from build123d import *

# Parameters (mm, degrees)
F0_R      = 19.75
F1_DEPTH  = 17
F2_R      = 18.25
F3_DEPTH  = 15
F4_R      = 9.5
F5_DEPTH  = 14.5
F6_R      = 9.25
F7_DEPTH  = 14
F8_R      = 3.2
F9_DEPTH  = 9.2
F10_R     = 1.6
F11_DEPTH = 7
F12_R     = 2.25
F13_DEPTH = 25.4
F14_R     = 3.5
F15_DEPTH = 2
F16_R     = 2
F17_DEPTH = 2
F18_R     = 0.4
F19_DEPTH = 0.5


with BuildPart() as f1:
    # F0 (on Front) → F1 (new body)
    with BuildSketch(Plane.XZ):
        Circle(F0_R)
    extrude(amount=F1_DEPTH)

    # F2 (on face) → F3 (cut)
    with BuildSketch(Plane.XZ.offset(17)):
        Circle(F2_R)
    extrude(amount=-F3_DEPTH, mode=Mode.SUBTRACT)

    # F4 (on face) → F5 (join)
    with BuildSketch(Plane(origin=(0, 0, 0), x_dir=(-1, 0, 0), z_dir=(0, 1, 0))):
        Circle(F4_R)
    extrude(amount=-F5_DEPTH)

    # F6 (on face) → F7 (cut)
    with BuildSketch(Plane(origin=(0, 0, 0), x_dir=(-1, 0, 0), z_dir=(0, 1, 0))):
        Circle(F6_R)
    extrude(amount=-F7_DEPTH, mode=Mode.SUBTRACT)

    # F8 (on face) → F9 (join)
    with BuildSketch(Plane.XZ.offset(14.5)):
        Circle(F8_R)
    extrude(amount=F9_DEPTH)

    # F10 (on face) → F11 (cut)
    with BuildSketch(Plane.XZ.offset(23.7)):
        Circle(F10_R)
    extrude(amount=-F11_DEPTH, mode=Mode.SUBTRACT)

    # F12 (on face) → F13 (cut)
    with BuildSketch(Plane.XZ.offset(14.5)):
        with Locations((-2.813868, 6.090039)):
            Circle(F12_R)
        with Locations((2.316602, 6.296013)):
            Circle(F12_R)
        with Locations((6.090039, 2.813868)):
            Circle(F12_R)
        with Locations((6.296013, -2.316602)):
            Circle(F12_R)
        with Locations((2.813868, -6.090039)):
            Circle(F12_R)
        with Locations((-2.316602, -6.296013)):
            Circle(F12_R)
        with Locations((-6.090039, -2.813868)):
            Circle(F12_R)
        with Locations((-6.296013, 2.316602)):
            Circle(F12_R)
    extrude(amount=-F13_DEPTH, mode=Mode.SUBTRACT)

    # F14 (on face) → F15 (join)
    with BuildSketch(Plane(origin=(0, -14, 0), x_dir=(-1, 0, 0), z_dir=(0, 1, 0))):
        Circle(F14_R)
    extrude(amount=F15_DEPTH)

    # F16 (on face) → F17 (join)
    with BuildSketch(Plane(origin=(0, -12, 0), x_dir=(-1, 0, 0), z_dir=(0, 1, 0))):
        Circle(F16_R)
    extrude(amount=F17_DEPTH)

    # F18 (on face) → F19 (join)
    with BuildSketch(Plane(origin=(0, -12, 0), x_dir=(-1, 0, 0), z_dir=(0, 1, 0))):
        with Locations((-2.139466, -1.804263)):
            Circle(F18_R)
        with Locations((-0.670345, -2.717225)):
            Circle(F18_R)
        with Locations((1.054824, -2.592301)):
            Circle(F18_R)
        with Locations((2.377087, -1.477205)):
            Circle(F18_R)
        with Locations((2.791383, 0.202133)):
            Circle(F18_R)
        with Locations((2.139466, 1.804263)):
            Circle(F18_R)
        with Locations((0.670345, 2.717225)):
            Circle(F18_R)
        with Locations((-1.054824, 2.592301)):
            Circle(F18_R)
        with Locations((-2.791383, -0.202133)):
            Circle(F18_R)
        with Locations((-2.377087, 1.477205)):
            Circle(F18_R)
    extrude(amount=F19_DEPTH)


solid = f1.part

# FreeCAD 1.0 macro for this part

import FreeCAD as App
import Part
import Sketcher
from FreeCAD import Vector
Q = App.Units.Quantity

doc = App.newDocument("Part")
body = doc.addObject("PartDesign::Body", "Body")

sketch1 = body.newObject("Sketcher::SketchObject", "Sketch")
sketch1.AttachmentSupport = (doc.getObject("XZ_Plane"), [""])
sketch1.MapMode = "FlatFace"
sketch1.addGeometry(Part.Circle(Vector(0, 0, 0), Vector(0, 0, 1), 20), False)
sketch1.addConstraint([
    Sketcher.Constraint("Coincident", 0, 3, -1, 1),
    Sketcher.Constraint("Diameter", 0, Q("39.5 mm")),
])
pad1 = body.newObject("PartDesign::Pad", "Pad")
pad1.Profile = sketch1
pad1.Length = 17

sketch2 = body.newObject("Sketcher::SketchObject", "Sketch001")
sketch2.AttachmentSupport = (doc.getObject("XZ_Plane"), [""])
sketch2.MapMode = "FlatFace"
sketch2.AttachmentOffset = App.Placement(Vector(0, 0, 17), App.Rotation())
sketch2.addGeometry(Part.Circle(Vector(0, 0, 0), Vector(0, 0, 1), 18), False)
sketch2.addConstraint([
    Sketcher.Constraint("Coincident", 0, 3, -1, 1),
    Sketcher.Constraint("Diameter", 0, Q("36.5 mm")),
])
pocket1 = body.newObject("PartDesign::Pocket", "Pocket")
pocket1.Profile = sketch2
pocket1.Length = 15

sketch3 = body.newObject("Sketcher::SketchObject", "Sketch002")
sketch3.AttachmentSupport = (doc.getObject("XZ_Plane"), [""])
sketch3.MapMode = "FlatFace"
sketch3.addGeometry(Part.Circle(Vector(0, 0, 0), Vector(0, 0, 1), 10), False)
sketch3.addConstraint([
    Sketcher.Constraint("Coincident", 0, 3, -1, 1),
    Sketcher.Constraint("Diameter", 0, Q("19 mm")),
])
pad2 = body.newObject("PartDesign::Pad", "Pad001")
pad2.Profile = sketch3
pad2.Length = 14.5

sketch4 = body.newObject("Sketcher::SketchObject", "Sketch003")
sketch4.AttachmentSupport = (doc.getObject("XZ_Plane"), [""])
sketch4.MapMode = "FlatFace"
sketch4.addGeometry(Part.Circle(Vector(0, 0, 0), Vector(0, 0, 1), 9), False)
sketch4.addConstraint([
    Sketcher.Constraint("Coincident", 0, 3, -1, 1),
    Sketcher.Constraint("Diameter", 0, Q("18.5 mm")),
])
pocket2 = body.newObject("PartDesign::Pocket", "Pocket001")
pocket2.Profile = sketch4
pocket2.Length = 14
pocket2.Reversed = True

sketch5 = body.newObject("Sketcher::SketchObject", "Sketch004")
sketch5.AttachmentSupport = (doc.getObject("XZ_Plane"), [""])
sketch5.MapMode = "FlatFace"
sketch5.AttachmentOffset = App.Placement(Vector(0, 0, 14.5), App.Rotation())
sketch5.addGeometry(Part.Circle(Vector(0, 0, 0), Vector(0, 0, 1), 3.2), False)
sketch5.addConstraint([
    Sketcher.Constraint("Coincident", 0, 3, -1, 1),
    Sketcher.Constraint("Diameter", 0, Q("6.4 mm")),
])
pad3 = body.newObject("PartDesign::Pad", "Pad002")
pad3.Profile = sketch5
pad3.Length = 9.2

sketch6 = body.newObject("Sketcher::SketchObject", "Sketch005")
sketch6.AttachmentSupport = (doc.getObject("XZ_Plane"), [""])
sketch6.MapMode = "FlatFace"
sketch6.AttachmentOffset = App.Placement(Vector(0, 0, 23.7), App.Rotation())
sketch6.addGeometry(Part.Circle(Vector(0, 0, 0), Vector(0, 0, 1), 1.6), False)
sketch6.addConstraint([
    Sketcher.Constraint("Coincident", 0, 3, -1, 1),
    Sketcher.Constraint("Diameter", 0, Q("3.2 mm")),
])
pocket3 = body.newObject("PartDesign::Pocket", "Pocket002")
pocket3.Profile = sketch6
pocket3.Length = 7

sketch7 = body.newObject("Sketcher::SketchObject", "Sketch006")
sketch7.AttachmentSupport = (doc.getObject("XZ_Plane"), [""])
sketch7.MapMode = "FlatFace"
sketch7.AttachmentOffset = App.Placement(Vector(0, 0, 14.5), App.Rotation())
sketch7.addGeometry([
    Part.Circle(Vector(-2.8, 6.1, 0), Vector(0, 0, 1), 2.2),
    Part.Circle(Vector(2.3, 6.3, 0), Vector(0, 0, 1), 2.2),
    Part.Circle(Vector(6.1, 2.8, 0), Vector(0, 0, 1), 2.2),
    Part.Circle(Vector(6.3, -2.3, 0), Vector(0, 0, 1), 2.2),
    Part.Circle(Vector(2.8, -6.1, 0), Vector(0, 0, 1), 2.2),
    Part.Circle(Vector(-2.3, -6.3, 0), Vector(0, 0, 1), 2.2),
    Part.Circle(Vector(-6.1, -2.8, 0), Vector(0, 0, 1), 2.2),
    Part.Circle(Vector(-6.3, 2.3, 0), Vector(0, 0, 1), 2.2),
], False)
sketch7.addConstraint([
    Sketcher.Constraint("Equal", 0, 1),
    Sketcher.Constraint("Equal", 1, 2),
    Sketcher.Constraint("Equal", 2, 3),
    Sketcher.Constraint("Equal", 3, 4),
    Sketcher.Constraint("Equal", 4, 5),
    Sketcher.Constraint("Equal", 5, 6),
    Sketcher.Constraint("Equal", 6, 7),
    Sketcher.Constraint("Symmetric", 0, 3, 4, 3, -1, 1),
    Sketcher.Constraint("Symmetric", 1, 3, 5, 3, -1, 1),
    Sketcher.Constraint("Symmetric", 2, 3, 6, 3, -1, 1),
    Sketcher.Constraint("Symmetric", 3, 3, 7, 3, -1, 1),
    Sketcher.Constraint("Diameter", 0, Q("4.5 mm")),
    Sketcher.Constraint("DistanceX", -1, 1, 1, 3, Q("2.316602 mm")),
    Sketcher.Constraint("DistanceY", 3, 3, -1, 1, Q("2.316602 mm")),
    Sketcher.Constraint("DistanceY", -1, 1, 0, 3, Q("6.090039 mm")),
    Sketcher.Constraint("DistanceX", -1, 1, 2, 3, Q("6.090039 mm")),
    Sketcher.Constraint("DistanceX", 0, 3, 1, 3, Q("5.13047 mm")),
    Sketcher.Constraint("DistanceY", 2, 3, 0, 3, Q("3.276171 mm")),
    Sketcher.Constraint("DistanceX", 1, 3, 3, 3, Q("3.979411 mm")),
    Sketcher.Constraint("DistanceY", 5, 3, 3, 3, Q("3.979411 mm")),
])
pocket4 = body.newObject("PartDesign::Pocket", "Pocket003")
pocket4.Profile = sketch7
pocket4.Length = 25.4

sketch8 = body.newObject("Sketcher::SketchObject", "Sketch007")
sketch8.AttachmentSupport = (doc.getObject("XZ_Plane"), [""])
sketch8.MapMode = "FlatFace"
sketch8.AttachmentOffset = App.Placement(Vector(0, 0, 14), App.Rotation())
sketch8.addGeometry(Part.Circle(Vector(0, 0, 0), Vector(0, 0, 1), 3.5), False)
sketch8.addConstraint([
    Sketcher.Constraint("Coincident", 0, 3, -1, 1),
    Sketcher.Constraint("Diameter", 0, Q("7 mm")),
])
pad4 = body.newObject("PartDesign::Pad", "Pad003")
pad4.Profile = sketch8
pad4.Length = 2
pad4.Reversed = True

sketch9 = body.newObject("Sketcher::SketchObject", "Sketch008")
sketch9.AttachmentSupport = (doc.getObject("XZ_Plane"), [""])
sketch9.MapMode = "FlatFace"
sketch9.AttachmentOffset = App.Placement(Vector(0, 0, 12), App.Rotation())
sketch9.addGeometry(Part.Circle(Vector(0, 0, 0), Vector(0, 0, 1), 2), False)
sketch9.addConstraint([
    Sketcher.Constraint("Coincident", 0, 3, -1, 1),
    Sketcher.Constraint("Diameter", 0, Q("4 mm")),
])
pad5 = body.newObject("PartDesign::Pad", "Pad004")
pad5.Profile = sketch9
pad5.Length = 2
pad5.Reversed = True

sketch10 = body.newObject("Sketcher::SketchObject", "Sketch009")
sketch10.AttachmentSupport = (doc.getObject("XZ_Plane"), [""])
sketch10.MapMode = "FlatFace"
sketch10.AttachmentOffset = App.Placement(Vector(0, 0, 12), App.Rotation())
sketch10.addGeometry([
    Part.Circle(Vector(2.14, -1.8, 0), Vector(0, 0, 1), 0.4),
    Part.Circle(Vector(0.67, -2.72, 0), Vector(0, 0, 1), 0.4),
    Part.Circle(Vector(-1.05, -2.59, 0), Vector(0, 0, 1), 0.4),
    Part.Circle(Vector(-2.38, -1.48, 0), Vector(0, 0, 1), 0.4),
    Part.Circle(Vector(-2.79, 0.2, 0), Vector(0, 0, 1), 0.4),
    Part.Circle(Vector(-2.14, 1.8, 0), Vector(0, 0, 1), 0.4),
    Part.Circle(Vector(-0.67, 2.72, 0), Vector(0, 0, 1), 0.4),
    Part.Circle(Vector(1.05, 2.59, 0), Vector(0, 0, 1), 0.4),
    Part.Circle(Vector(2.79, -0.2, 0), Vector(0, 0, 1), 0.4),
    Part.Circle(Vector(2.38, 1.48, 0), Vector(0, 0, 1), 0.4),
], False)
sketch10.addConstraint([
    Sketcher.Constraint("Equal", 0, 1),
    Sketcher.Constraint("Equal", 1, 2),
    Sketcher.Constraint("Equal", 2, 3),
    Sketcher.Constraint("Equal", 3, 4),
    Sketcher.Constraint("Equal", 4, 5),
    Sketcher.Constraint("Equal", 5, 6),
    Sketcher.Constraint("Equal", 6, 7),
    Sketcher.Constraint("Equal", 7, 8),
    Sketcher.Constraint("Equal", 8, 9),
    Sketcher.Constraint("Symmetric", 0, 3, 5, 3, -1, 1),
    Sketcher.Constraint("Symmetric", 1, 3, 6, 3, -1, 1),
    Sketcher.Constraint("Symmetric", 2, 3, 7, 3, -1, 1),
    Sketcher.Constraint("Symmetric", 4, 3, 8, 3, -1, 1),
    Sketcher.Constraint("Symmetric", 3, 3, 9, 3, -1, 1),
    Sketcher.Constraint("Diameter", 0, Q("0.8 mm")),
    Sketcher.Constraint("DistanceY", 2, 3, -1, 1, Q("2.592301 mm")),
    Sketcher.Constraint("DistanceX", 1, 3, 0, 3, Q("1.469121 mm")),
    Sketcher.Constraint("DistanceX", 2, 3, 1, 3, Q("1.725169 mm")),
    Sketcher.Constraint("DistanceY", 2, 3, 0, 3, Q("0.788038 mm")),
    Sketcher.Constraint("DistanceX", 3, 3, 1, 3, Q("3.047432 mm")),
    Sketcher.Constraint("DistanceY", 1, 3, 3, 3, Q("1.24002 mm")),
    Sketcher.Constraint("DistanceX", 4, 3, 2, 3, Q("1.736559 mm")),
    Sketcher.Constraint("DistanceY", 4, 3, 5, 3, Q("1.60213 mm")),
    Sketcher.Constraint("DistanceX", 3, 3, 5, 3, Q("0.237621 mm")),
    Sketcher.Constraint("DistanceY", 3, 3, 5, 3, Q("3.281468 mm")),
])
pad6 = body.newObject("PartDesign::Pad", "Pad005")
pad6.Profile = sketch10
pad6.Length = 0.5
pad6.Reversed = True

doc.recompute()
